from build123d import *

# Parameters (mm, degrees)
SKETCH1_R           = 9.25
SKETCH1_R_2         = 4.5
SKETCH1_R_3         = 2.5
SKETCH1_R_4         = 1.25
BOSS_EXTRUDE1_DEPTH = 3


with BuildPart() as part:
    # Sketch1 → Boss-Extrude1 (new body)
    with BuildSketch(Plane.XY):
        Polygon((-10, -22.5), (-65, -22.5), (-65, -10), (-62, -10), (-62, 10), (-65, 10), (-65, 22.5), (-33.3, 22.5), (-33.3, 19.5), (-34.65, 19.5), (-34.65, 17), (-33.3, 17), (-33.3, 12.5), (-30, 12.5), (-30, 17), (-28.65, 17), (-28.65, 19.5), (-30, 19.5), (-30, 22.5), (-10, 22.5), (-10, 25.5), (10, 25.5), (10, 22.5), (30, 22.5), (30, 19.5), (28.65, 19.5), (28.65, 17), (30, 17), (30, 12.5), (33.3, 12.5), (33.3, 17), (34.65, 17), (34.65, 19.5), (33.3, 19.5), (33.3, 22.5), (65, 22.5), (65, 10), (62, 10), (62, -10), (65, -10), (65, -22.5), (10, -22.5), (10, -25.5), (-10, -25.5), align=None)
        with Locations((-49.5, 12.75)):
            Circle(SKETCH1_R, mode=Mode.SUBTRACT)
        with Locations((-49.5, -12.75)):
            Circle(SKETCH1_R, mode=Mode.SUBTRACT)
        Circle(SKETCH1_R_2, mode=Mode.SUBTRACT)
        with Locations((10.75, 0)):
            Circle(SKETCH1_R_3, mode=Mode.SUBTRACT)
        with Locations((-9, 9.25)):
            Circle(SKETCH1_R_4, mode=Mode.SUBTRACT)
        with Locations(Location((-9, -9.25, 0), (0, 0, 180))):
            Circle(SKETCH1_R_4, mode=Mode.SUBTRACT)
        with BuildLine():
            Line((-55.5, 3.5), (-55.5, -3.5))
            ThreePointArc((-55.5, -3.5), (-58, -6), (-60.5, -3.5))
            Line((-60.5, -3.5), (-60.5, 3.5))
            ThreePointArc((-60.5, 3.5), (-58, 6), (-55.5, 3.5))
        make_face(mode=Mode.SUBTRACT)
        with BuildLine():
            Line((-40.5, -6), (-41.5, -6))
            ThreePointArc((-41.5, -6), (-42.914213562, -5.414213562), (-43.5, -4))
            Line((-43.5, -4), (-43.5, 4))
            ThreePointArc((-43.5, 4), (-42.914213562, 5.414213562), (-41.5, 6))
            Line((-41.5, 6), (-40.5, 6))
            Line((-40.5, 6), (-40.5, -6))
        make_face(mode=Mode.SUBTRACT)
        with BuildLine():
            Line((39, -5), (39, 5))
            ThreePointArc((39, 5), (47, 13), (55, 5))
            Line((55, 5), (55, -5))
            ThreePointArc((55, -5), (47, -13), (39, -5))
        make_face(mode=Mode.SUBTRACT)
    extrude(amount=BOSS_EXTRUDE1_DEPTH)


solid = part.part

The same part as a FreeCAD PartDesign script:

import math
import FreeCAD as App
import Part
import Sketcher

V = App.Vector


def add_polygon(sketch, points):
    """Adds a closed chain of lines whose ends are joined by coincident constraints."""
    first, n = sketch.GeometryCount, len(points)
    for a, b in zip(points, points[1:] + points[:1]):
        sketch.addGeometry(Part.LineSegment(App.Vector(*a, 0), App.Vector(*b, 0)), False)
    for i in range(n):
        sketch.addConstraint(Sketcher.Constraint("Coincident", first + i, 2, first + (i + 1) % n, 1))

doc = App.newDocument("Part")
body = doc.addObject("PartDesign::Body", "Body")

sketch1 = body.newObject("Sketcher::SketchObject", "Sketch")
sketch1.AttachmentSupport = (doc.getObject("XY_Plane"), [""])
sketch1.MapMode = "FlatFace"
add_polygon(sketch1, [(-65, -22.5), (-10, -22.5), (-10, -25.5), (10, -25.5), (10, -22.5), (65, -22.5), (65, -10), (62, -10), (62, 10), (65, 10), (65, 22.5), (33.3, 22.5), (33.3, 19.5), (34.65, 19.5), (34.65, 17), (33.3, 17), (33.3, 12.5), (30, 12.5), (30, 17), (28.65, 17), (28.65, 19.5), (30, 19.5), (30, 22.5), (10, 22.5), (10, 25.5), (-10, 25.5), (-10, 22.5), (-30, 22.5), (-30, 19.5), (-28.65, 19.5), (-28.65, 17), (-30, 17), (-30, 12.5), (-33.3, 12.5), (-33.3, 17), (-34.65, 17), (-34.65, 19.5), (-33.3, 19.5), (-33.3, 22.5), (-65, 22.5), (-65, 10), (-62, 10), (-62, -10), (-65, -10)])
sketch1.addGeometry(Part.Circle(V(-49.5, -12.75, 0), V(0, 0, 1), 9.25), False)
sketch1.addGeometry(Part.Circle(V(-9, -9.25, 0), V(0, 0, 1), 1.25), False)
sketch1.addGeometry(Part.LineSegment(V(39, -5, 0), V(39, 5, 0)), False)
sketch1.addGeometry(Part.ArcOfCircle(Part.Circle(V(47, 5, 0), V(0, 0, 1), 8), math.radians(0), math.radians(180)), False)
sketch1.addGeometry(Part.LineSegment(V(55, 5, 0), V(55, -5, 0)), False)
sketch1.addGeometry(Part.ArcOfCircle(Part.Circle(V(47, -5, 0), V(0, 0, 1), 8), math.radians(180), math.radians(360)), False)
sketch1.addGeometry(Part.Circle(V(10.75, 0, 0), V(0, 0, 1), 2.5), False)
sketch1.addGeometry(Part.Circle(V(0, 0, 0), V(0, 0, 1), 4.5), False)
sketch1.addGeometry(Part.Circle(V(-9, 9.25, 0), V(0, 0, 1), 1.25), False)
sketch1.addGeometry(Part.LineSegment(V(-40.5, -6, 0), V(-41.5, -6, 0)), False)
sketch1.addGeometry(Part.ArcOfCircle(Part.Circle(V(-41.5, -4, 0), V(0, 0, 1), 2), math.radians(-180), math.radians(-90)), False)
sketch1.addGeometry(Part.LineSegment(V(-43.5, -4, 0), V(-43.5, 4, 0)), False)
sketch1.addGeometry(Part.ArcOfCircle(Part.Circle(V(-41.5, 4, 0), V(0, 0, 1), 2), math.radians(90), math.radians(180)), False)
sketch1.addGeometry(Part.LineSegment(V(-41.5, 6, 0), V(-40.5, 6, 0)), False)
sketch1.addGeometry(Part.LineSegment(V(-40.5, 6, 0), V(-40.5, -6, 0)), False)
sketch1.addGeometry(Part.LineSegment(V(-55.5, 3.5, 0), V(-55.5, -3.5, 0)), False)
sketch1.addGeometry(Part.ArcOfCircle(Part.Circle(V(-58, -3.5, 0), V(0, 0, 1), 2.5), math.radians(180), math.radians(360)), False)
sketch1.addGeometry(Part.LineSegment(V(-60.5, -3.5, 0), V(-60.5, 3.5, 0)), False)
sketch1.addGeometry(Part.ArcOfCircle(Part.Circle(V(-58, 3.5, 0), V(0, 0, 1), 2.5), math.radians(0), math.radians(180)), False)
sketch1.addGeometry(Part.Circle(V(-49.5, 12.75, 0), V(0, 0, 1), 9.25), False)
sketch1.addConstraint(Sketcher.Constraint("Tangent", 46, 2, 47, 2))
sketch1.addConstraint(Sketcher.Constraint("Tangent", 47, 1, 48, 1))
sketch1.addConstraint(Sketcher.Constraint("Tangent", 48, 2, 49, 2))
sketch1.addConstraint(Sketcher.Constraint("Tangent", 49, 1, 46, 1))
sketch1.addConstraint(Sketcher.Constraint("Tangent", 53, 2, 54, 2))
sketch1.addConstraint(Sketcher.Constraint("Tangent", 54, 1, 55, 1))
sketch1.addConstraint(Sketcher.Constraint("Tangent", 55, 2, 56, 2))
sketch1.addConstraint(Sketcher.Constraint("Tangent", 56, 1, 57, 1))
sketch1.addConstraint(Sketcher.Constraint("Coincident", 57, 2, 58, 1))
sketch1.addConstraint(Sketcher.Constraint("Coincident", 58, 2, 53, 1))
sketch1.addConstraint(Sketcher.Constraint("Tangent", 59, 2, 60, 2))
sketch1.addConstraint(Sketcher.Constraint("Tangent", 60, 1, 61, 1))
sketch1.addConstraint(Sketcher.Constraint("Tangent", 61, 2, 62, 2))
sketch1.addConstraint(Sketcher.Constraint("Tangent", 62, 1, 59, 1))
sketch1.addConstraint(Sketcher.Constraint("Horizontal", 0))
sketch1.addConstraint(Sketcher.Constraint("Vertical", 1))
sketch1.addConstraint(Sketcher.Constraint("Horizontal", 2))
sketch1.addConstraint(Sketcher.Constraint("Vertical", 3))
sketch1.addConstraint(Sketcher.Constraint("Horizontal", 4))
sketch1.addConstraint(Sketcher.Constraint("Vertical", 5))
sketch1.addConstraint(Sketcher.Constraint("Horizontal", 6))
sketch1.addConstraint(Sketcher.Constraint("Vertical", 7))
sketch1.addConstraint(Sketcher.Constraint("Horizontal", 8))
sketch1.addConstraint(Sketcher.Constraint("Vertical", 9))
sketch1.addConstraint(Sketcher.Constraint("Horizontal", 10))
sketch1.addConstraint(Sketcher.Constraint("Vertical", 11))
sketch1.addConstraint(Sketcher.Constraint("Horizontal", 12))
sketch1.addConstraint(Sketcher.Constraint("Vertical", 13))
sketch1.addConstraint(Sketcher.Constraint("Horizontal", 14))
sketch1.addConstraint(Sketcher.Constraint("Vertical", 15))
sketch1.addConstraint(Sketcher.Constraint("Horizontal", 16))
sketch1.addConstraint(Sketcher.Constraint("Vertical", 17))
sketch1.addConstraint(Sketcher.Constraint("Horizontal", 18))
sketch1.addConstraint(Sketcher.Constraint("Vertical", 19))
sketch1.addConstraint(Sketcher.Constraint("Horizontal", 20))
sketch1.addConstraint(Sketcher.Constraint("Vertical", 21))
sketch1.addConstraint(Sketcher.Constraint("Horizontal", 22))
sketch1.addConstraint(Sketcher.Constraint("Vertical", 23))
sketch1.addConstraint(Sketcher.Constraint("Horizontal", 24))
sketch1.addConstraint(Sketcher.Constraint("Vertical", 25))
sketch1.addConstraint(Sketcher.Constraint("Horizontal", 26))
sketch1.addConstraint(Sketcher.Constraint("Vertical", 27))
sketch1.addConstraint(Sketcher.Constraint("Horizontal", 28))
sketch1.addConstraint(Sketcher.Constraint("Vertical", 29))
sketch1.addConstraint(Sketcher.Constraint("Horizontal", 30))
sketch1.addConstraint(Sketcher.Constraint("Vertical", 31))
sketch1.addConstraint(Sketcher.Constraint("Horizontal", 32))
sketch1.addConstraint(Sketcher.Constraint("Vertical", 33))
sketch1.addConstraint(Sketcher.Constraint("Horizontal", 34))
sketch1.addConstraint(Sketcher.Constraint("Vertical", 35))
sketch1.addConstraint(Sketcher.Constraint("Horizontal", 36))
sketch1.addConstraint(Sketcher.Constraint("Vertical", 37))
sketch1.addConstraint(Sketcher.Constraint("Horizontal", 38))
sketch1.addConstraint(Sketcher.Constraint("Vertical", 39))
sketch1.addConstraint(Sketcher.Constraint("Horizontal", 40))
sketch1.addConstraint(Sketcher.Constraint("Vertical", 41))
sketch1.addConstraint(Sketcher.Constraint("Horizontal", 42))
sketch1.addConstraint(Sketcher.Constraint("Vertical", 43))
sketch1.addConstraint(Sketcher.Constraint("Vertical", 46))
sketch1.addConstraint(Sketcher.Constraint("Vertical", 48))
sketch1.addConstraint(Sketcher.Constraint("Horizontal", 53))
sketch1.addConstraint(Sketcher.Constraint("Vertical", 55))
sketch1.addConstraint(Sketcher.Constraint("Horizontal", 57))
sketch1.addConstraint(Sketcher.Constraint("Vertical", 58))
sketch1.addConstraint(Sketcher.Constraint("Vertical", 59))
sketch1.addConstraint(Sketcher.Constraint("Vertical", 61))
sketch1.addConstraint(Sketcher.Constraint("Coincident", 51, 3, -1, 1))
sketch1.addConstraint(Sketcher.Constraint("Equal", 45, 52))
sketch1.addConstraint(Sketcher.Constraint("Equal", 54, 56))
sketch1.addConstraint(Sketcher.Constraint("Equal", 50, 60))
sketch1.addConstraint(Sketcher.Constraint("Equal", 44, 63))
sketch1.addConstraint(Sketcher.Constraint("Symmetric", 0, 2, 22, 2, -1, 1))
sketch1.addConstraint(Sketcher.Constraint("Symmetric", 2, 2, 24, 2, -1, 1))
sketch1.addConstraint(Sketcher.Constraint("Symmetric", 4, 2, 38, 2, -1, 1))
sketch1.addConstraint(Sketcher.Constraint("Symmetric", 6, 2, 40, 2, -1, 1))
sketch1.addConstraint(Sketcher.Constraint("Symmetric", 8, 2, 42, 2, -1, 1))
sketch1.addConstraint(Sketcher.Constraint("Symmetric", 0, 2, 3, 2, -2))
sketch1.addConstraint(Sketcher.Constraint("Symmetric", 21, 2, 26, 2, -2))
sketch1.addConstraint(Sketcher.Constraint("Symmetric", 19, 2, 28, 2, -2))
sketch1.addConstraint(Sketcher.Constraint("Symmetric", 17, 2, 30, 2, -2))
sketch1.addConstraint(Sketcher.Constraint("Symmetric", 15, 2, 32, 2, -2))
sketch1.addConstraint(Sketcher.Constraint("Symmetric", 13, 2, 34, 2, -2))
sketch1.addConstraint(Sketcher.Constraint("Symmetric", 11, 2, 36, 2, -2))
sketch1.addConstraint(Sketcher.Constraint("Symmetric", 9, 2, 38, 2, -2))
sketch1.addConstraint(Sketcher.Constraint("Symmetric", 45, 3, 52, 3, -1))
sketch1.addConstraint(Sketcher.Constraint("Symmetric", 44, 3, 63, 3, -1))
sketch1.addConstraint(Sketcher.Constraint("PointOnObject", 50, 3, -1))
sketch1.addConstraint(Sketcher.Constraint("Horizontal", 14, 2, 17, 2))
sketch1.addConstraint(Sketcher.Constraint("Horizontal", 12, 2, 19, 2))
sketch1.addConstraint(Sketcher.Constraint("Horizontal", 8, 2, 39, 2))
sketch1.addConstraint(Sketcher.Constraint("Vertical", 11, 2, 14, 2))
sketch1.addConstraint(Sketcher.Constraint("Vertical", 17, 2, 20, 2))
sketch1.addConstraint(Sketcher.Constraint("Equal", 14, 18))
sketch1.addConstraint(Sketcher.Constraint("Equal", 2, 22))
sketch1.addConstraint(Sketcher.Constraint("Equal", 42, 1))
sketch1.addConstraint(Sketcher.Constraint("Equal", 26, 7))
sketch1.addConstraint(Sketcher.Constraint("Equal", 3, 11))
sketch1.addConstraint(Sketcher.Constraint("Diameter", 50, 5.0))
sketch1.addConstraint(Sketcher.Constraint("Diameter", 51, 9.0))
sketch1.addConstraint(Sketcher.Constraint("Radius", 47, 8.0))
sketch1.addConstraint(Sketcher.Constraint("Radius", 54, 2.0))
sketch1.addConstraint(Sketcher.Constraint("Diameter", 44, 18.5))
sketch1.addConstraint(Sketcher.Constraint("Diameter", 45, 2.5))
sketch1.addConstraint(Sketcher.Constraint("DistanceX", 0, 1, 0, 2, 55.0))
sketch1.addConstraint(Sketcher.Constraint("DistanceX", 2, 1, 2, 2, 20.0))
sketch1.addConstraint(Sketcher.Constraint("DistanceX", 6, 2, 6, 1, 3.0))
sketch1.addConstraint(Sketcher.Constraint("DistanceX", 53, 2, 53, 1, 1.0))
sketch1.addConstraint(Sketcher.Constraint("DistanceY", 46, 1, 46, 2, 10.0))
sketch1.addConstraint(Sketcher.Constraint("DistanceY", 55, 1, 55, 2, 8.0))
sketch1.addConstraint(Sketcher.Constraint("DistanceY", 59, 2, 59, 1, 7.0))
sketch1.addConstraint(Sketcher.Constraint("DistanceX", 10, 2, 10, 1, 31.7))
sketch1.addConstraint(Sketcher.Constraint("DistanceY", 5, 1, 5, 2, 12.5))
sketch1.addConstraint(Sketcher.Constraint("DistanceY", 13, 2, 13, 1, 2.5))
sketch1.addConstraint(Sketcher.Constraint("DistanceY", 15, 2, 15, 1, 4.5))
sketch1.addConstraint(Sketcher.Constraint("DistanceX", 45, 3, -1, 1, 9.0))
sketch1.addConstraint(Sketcher.Constraint("DistanceX", -1, 1, 47, 3, 47.0))
sketch1.addConstraint(Sketcher.Constraint("DistanceY", -1, 1, 47, 3, 5.0))
sketch1.addConstraint(Sketcher.Constraint("DistanceY", 54, 3, -1, 1, 4.0))
sketch1.addConstraint(Sketcher.Constraint("DistanceX", 60, 3, -1, 1, 58.0))
sketch1.addConstraint(Sketcher.Constraint("DistanceX", 12, 1, 12, 2, 1.35))
sketch1.addConstraint(Sketcher.Constraint("DistanceX", 44, 3, -1, 1, 49.5))
sketch1.addConstraint(Sketcher.Constraint("DistanceX", 54, 3, -1, 1, 41.5))
sketch1.addConstraint(Sketcher.Constraint("DistanceY", 60, 3, -1, 1, 3.5))
sketch1.addConstraint(Sketcher.Constraint("DistanceY", 44, 3, -1, 1, 12.75))
sketch1.addConstraint(Sketcher.Constraint("DistanceY", 45, 3, -1, 1, 9.25))
sketch1.addConstraint(Sketcher.Constraint("DistanceX", -1, 1, 50, 3, 10.75))
pad1 = body.newObject("PartDesign::Pad", "Pad")
pad1.Profile = sketch1
pad1.Length = 3

doc.recompute()
